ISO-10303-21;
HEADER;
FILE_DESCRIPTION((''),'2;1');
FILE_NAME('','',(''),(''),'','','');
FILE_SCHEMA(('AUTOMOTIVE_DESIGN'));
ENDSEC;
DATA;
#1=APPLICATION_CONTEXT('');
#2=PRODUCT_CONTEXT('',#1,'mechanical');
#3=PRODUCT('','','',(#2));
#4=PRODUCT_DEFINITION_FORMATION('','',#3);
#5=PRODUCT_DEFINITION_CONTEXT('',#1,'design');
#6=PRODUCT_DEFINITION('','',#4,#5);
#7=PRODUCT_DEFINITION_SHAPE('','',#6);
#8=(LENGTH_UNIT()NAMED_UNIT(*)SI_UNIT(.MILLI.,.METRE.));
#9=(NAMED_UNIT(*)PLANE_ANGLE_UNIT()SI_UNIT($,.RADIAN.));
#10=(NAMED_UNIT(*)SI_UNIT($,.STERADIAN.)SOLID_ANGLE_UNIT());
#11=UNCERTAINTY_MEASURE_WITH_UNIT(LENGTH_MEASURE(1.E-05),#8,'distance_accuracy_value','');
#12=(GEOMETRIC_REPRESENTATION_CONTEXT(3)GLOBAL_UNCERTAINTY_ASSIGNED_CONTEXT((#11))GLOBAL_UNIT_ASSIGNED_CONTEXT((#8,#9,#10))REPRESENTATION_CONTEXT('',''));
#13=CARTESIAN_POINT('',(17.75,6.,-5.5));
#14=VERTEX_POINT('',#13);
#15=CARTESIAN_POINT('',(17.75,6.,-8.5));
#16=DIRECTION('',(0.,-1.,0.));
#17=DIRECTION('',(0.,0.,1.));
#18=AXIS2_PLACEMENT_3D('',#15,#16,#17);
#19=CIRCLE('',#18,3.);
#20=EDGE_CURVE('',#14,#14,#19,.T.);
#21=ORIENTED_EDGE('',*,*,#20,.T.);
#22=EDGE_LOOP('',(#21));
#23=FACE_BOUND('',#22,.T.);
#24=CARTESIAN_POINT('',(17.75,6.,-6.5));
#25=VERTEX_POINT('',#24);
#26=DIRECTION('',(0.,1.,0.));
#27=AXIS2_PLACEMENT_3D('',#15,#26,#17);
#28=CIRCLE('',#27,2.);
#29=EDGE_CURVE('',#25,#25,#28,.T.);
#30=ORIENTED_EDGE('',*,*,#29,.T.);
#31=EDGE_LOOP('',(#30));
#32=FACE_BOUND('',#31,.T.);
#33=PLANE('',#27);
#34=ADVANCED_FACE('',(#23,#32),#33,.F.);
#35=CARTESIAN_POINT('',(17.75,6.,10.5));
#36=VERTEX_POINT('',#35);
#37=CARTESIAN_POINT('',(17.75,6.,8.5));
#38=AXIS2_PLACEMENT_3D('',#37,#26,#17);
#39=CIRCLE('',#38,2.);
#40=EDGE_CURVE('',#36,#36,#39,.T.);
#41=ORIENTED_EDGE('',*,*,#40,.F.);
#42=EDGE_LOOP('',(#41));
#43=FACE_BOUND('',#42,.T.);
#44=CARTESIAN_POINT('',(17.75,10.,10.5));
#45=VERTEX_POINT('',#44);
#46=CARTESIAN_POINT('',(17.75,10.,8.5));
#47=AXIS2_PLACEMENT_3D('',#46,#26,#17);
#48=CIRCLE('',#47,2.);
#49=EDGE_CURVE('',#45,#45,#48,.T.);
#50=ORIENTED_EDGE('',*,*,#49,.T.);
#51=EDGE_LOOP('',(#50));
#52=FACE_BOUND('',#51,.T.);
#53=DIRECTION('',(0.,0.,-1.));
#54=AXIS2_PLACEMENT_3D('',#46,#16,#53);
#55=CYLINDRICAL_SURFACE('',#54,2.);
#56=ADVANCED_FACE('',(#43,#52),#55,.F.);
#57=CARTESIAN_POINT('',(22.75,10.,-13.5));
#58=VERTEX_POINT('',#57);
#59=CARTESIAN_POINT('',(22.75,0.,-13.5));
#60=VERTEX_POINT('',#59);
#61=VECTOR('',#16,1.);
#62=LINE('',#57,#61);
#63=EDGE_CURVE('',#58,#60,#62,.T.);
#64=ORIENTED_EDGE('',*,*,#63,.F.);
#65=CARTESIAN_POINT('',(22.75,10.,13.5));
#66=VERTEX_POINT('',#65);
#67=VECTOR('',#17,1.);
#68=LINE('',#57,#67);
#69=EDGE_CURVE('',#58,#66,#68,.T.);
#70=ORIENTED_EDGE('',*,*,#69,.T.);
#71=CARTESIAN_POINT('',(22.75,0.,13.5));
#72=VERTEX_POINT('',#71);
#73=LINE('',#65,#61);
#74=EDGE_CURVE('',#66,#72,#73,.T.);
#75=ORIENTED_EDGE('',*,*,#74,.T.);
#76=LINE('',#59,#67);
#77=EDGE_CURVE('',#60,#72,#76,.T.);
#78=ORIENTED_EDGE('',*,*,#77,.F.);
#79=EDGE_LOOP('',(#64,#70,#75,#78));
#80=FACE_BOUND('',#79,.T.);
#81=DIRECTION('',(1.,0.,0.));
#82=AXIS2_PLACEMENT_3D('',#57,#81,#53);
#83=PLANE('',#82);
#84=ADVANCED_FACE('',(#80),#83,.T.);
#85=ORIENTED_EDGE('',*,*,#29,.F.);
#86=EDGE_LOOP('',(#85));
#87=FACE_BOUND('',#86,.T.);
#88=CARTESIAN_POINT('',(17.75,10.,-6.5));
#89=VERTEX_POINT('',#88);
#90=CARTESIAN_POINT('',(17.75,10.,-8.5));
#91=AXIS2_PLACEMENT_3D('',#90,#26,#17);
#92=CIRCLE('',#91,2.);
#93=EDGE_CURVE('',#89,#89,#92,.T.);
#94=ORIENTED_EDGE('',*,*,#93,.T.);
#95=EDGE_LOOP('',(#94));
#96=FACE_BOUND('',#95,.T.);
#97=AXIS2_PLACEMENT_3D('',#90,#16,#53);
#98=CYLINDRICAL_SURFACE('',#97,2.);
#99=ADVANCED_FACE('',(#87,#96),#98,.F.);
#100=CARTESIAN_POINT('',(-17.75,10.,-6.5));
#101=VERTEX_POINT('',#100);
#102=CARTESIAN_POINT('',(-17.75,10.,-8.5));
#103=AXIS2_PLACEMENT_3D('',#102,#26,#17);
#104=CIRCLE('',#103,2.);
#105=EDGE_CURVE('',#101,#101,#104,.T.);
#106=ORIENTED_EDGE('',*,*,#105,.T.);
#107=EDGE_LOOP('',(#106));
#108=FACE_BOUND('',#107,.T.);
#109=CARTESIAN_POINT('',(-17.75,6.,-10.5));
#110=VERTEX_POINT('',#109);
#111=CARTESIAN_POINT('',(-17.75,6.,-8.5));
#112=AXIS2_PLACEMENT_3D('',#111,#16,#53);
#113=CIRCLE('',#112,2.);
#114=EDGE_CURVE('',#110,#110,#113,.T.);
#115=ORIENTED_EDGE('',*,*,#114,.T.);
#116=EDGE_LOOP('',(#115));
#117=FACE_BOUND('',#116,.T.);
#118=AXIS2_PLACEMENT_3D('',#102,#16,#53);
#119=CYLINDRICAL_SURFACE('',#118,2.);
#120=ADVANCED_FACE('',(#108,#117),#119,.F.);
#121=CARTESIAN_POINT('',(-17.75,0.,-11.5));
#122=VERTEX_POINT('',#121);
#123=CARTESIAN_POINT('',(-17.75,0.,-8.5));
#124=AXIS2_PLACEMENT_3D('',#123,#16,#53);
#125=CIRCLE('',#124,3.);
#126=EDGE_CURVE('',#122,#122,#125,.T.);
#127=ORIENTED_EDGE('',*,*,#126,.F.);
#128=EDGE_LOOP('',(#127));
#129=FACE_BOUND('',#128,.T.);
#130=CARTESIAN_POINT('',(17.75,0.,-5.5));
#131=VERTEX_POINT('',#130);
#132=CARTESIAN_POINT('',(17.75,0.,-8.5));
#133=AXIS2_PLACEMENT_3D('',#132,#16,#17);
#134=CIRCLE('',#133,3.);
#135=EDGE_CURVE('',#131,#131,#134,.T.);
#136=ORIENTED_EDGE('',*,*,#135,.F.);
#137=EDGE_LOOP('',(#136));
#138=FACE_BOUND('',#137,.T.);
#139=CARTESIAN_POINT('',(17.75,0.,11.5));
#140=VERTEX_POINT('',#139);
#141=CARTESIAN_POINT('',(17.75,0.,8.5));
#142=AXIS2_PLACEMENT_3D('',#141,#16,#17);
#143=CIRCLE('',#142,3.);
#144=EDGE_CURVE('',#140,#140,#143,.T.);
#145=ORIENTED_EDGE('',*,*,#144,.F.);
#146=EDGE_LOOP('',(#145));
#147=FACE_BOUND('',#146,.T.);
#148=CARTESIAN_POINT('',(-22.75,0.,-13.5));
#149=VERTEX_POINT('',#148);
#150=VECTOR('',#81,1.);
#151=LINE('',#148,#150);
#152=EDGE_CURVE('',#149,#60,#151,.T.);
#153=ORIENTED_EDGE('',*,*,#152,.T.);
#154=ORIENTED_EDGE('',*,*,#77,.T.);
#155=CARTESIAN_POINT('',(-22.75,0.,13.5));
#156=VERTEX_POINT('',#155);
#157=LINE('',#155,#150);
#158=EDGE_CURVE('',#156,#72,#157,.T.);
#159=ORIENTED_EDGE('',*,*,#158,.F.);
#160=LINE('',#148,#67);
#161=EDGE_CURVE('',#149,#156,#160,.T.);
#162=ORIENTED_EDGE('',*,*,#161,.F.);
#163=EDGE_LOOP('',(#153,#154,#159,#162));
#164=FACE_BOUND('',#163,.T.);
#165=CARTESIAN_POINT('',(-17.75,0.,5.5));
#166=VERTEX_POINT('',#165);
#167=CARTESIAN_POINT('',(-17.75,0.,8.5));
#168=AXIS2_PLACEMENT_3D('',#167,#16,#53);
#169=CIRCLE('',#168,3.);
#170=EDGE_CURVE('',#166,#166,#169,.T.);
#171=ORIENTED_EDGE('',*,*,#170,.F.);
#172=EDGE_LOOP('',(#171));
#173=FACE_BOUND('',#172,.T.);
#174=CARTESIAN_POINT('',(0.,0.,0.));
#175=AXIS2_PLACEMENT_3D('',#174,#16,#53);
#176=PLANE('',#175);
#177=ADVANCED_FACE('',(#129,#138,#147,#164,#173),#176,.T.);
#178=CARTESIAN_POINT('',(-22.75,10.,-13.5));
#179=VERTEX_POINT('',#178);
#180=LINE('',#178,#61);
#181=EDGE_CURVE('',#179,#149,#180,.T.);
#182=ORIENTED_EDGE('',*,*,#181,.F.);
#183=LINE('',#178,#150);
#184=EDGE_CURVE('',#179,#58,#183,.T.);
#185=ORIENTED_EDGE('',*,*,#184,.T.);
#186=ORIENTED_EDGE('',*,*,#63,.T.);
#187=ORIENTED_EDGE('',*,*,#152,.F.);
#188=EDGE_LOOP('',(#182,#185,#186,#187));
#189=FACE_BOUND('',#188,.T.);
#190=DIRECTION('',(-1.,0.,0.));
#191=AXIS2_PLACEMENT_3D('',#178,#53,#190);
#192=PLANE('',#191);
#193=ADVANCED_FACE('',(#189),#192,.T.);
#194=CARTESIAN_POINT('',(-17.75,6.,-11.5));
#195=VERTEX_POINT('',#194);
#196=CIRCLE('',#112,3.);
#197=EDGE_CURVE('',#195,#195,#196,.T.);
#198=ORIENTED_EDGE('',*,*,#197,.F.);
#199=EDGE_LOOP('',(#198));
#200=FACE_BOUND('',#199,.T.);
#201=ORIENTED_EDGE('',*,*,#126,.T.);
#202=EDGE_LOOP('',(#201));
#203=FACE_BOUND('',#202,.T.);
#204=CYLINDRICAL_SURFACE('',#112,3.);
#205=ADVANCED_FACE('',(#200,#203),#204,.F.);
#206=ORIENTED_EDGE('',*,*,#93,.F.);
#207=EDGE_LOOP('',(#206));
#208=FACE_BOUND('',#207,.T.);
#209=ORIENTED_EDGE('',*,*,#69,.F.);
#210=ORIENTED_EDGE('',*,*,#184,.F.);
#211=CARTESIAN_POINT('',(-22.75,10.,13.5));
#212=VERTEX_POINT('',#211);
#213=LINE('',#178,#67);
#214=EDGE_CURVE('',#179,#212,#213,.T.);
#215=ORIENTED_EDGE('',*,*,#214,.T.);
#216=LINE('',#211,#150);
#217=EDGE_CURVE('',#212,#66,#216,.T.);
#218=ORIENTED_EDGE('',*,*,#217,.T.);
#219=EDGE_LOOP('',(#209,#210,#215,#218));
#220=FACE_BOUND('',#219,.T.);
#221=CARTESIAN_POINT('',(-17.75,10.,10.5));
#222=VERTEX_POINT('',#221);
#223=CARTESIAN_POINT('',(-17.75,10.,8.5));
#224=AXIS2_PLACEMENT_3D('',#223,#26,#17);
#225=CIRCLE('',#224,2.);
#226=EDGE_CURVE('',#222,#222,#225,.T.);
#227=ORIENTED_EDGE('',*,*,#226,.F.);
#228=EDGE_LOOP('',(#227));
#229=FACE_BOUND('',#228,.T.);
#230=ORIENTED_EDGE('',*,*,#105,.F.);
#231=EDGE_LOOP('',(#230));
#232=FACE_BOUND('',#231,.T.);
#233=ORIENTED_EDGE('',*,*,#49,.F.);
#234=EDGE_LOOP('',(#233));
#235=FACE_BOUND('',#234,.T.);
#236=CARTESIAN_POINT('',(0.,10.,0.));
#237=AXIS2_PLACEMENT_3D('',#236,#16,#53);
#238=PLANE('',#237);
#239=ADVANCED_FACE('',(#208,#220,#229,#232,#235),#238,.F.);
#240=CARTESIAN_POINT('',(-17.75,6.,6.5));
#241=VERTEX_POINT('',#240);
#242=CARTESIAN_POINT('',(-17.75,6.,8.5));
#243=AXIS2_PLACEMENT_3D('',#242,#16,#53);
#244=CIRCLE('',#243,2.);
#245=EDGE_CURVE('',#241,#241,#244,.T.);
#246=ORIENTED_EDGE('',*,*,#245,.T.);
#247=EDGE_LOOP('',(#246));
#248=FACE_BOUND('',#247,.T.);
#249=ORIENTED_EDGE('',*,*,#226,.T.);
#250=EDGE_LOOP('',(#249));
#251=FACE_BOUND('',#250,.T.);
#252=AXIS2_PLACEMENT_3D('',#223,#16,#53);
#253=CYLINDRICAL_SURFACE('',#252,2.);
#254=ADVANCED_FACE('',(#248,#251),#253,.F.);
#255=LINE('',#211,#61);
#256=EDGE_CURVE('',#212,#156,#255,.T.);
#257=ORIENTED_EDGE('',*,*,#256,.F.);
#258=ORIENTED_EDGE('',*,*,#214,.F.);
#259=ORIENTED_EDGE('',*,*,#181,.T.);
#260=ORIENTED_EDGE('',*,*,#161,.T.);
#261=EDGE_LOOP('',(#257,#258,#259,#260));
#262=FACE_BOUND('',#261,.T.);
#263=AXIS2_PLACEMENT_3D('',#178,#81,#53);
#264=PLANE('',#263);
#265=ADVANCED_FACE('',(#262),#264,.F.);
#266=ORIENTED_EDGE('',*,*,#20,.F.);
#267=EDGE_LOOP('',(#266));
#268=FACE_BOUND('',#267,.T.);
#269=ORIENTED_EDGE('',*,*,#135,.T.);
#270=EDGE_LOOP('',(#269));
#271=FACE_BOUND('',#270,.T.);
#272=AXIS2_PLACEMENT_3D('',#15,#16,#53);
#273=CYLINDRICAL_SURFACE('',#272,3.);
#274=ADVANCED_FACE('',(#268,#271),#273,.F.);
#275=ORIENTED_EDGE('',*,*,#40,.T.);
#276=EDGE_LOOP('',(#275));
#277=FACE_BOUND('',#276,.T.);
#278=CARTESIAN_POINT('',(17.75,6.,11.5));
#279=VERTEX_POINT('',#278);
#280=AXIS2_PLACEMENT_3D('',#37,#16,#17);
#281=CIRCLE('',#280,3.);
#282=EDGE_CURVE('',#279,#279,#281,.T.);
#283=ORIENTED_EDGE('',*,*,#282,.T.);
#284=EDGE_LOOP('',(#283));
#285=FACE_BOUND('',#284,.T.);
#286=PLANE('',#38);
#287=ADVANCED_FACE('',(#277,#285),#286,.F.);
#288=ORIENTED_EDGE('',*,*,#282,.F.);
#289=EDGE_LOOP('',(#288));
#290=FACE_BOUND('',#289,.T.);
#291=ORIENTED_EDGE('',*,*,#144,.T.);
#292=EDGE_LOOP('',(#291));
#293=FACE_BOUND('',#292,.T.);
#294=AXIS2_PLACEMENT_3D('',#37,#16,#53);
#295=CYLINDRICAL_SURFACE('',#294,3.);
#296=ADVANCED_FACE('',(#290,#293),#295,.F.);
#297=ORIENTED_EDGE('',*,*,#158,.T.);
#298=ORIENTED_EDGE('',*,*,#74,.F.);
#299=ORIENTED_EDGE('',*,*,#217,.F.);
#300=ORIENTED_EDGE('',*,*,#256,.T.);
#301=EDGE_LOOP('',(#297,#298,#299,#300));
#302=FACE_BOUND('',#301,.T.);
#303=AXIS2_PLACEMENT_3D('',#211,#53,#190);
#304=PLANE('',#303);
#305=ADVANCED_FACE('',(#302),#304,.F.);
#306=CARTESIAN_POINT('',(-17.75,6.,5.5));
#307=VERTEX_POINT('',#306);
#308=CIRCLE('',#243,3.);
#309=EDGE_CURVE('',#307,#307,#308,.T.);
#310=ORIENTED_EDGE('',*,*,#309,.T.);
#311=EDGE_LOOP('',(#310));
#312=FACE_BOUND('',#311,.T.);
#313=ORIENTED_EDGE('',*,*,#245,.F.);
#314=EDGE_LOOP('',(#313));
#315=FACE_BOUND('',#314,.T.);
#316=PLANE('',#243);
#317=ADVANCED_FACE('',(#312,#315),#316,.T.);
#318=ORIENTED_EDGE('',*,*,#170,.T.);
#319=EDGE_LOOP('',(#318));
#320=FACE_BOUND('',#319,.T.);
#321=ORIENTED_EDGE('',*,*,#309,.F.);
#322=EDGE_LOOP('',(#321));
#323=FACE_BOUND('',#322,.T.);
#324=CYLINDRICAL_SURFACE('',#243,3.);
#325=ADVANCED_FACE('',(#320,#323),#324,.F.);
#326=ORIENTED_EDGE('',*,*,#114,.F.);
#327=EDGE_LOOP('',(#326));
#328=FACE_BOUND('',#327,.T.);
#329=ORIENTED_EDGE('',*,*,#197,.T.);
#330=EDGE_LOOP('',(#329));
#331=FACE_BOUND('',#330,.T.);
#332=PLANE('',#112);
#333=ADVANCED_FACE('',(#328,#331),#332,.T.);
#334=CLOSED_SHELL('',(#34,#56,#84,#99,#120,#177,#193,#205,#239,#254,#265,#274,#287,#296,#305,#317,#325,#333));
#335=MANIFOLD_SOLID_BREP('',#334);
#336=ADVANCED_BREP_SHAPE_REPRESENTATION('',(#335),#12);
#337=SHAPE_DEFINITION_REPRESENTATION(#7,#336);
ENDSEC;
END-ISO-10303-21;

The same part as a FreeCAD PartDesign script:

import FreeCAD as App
import Part
import Sketcher


def add_polygon(sketch, points):
    """Adds a closed chain of lines whose ends are joined by coincident constraints."""
    first, n = sketch.GeometryCount, len(points)
    for a, b in zip(points, points[1:] + points[:1]):
        sketch.addGeometry(Part.LineSegment(App.Vector(*a, 0), App.Vector(*b, 0)), False)
    for i in range(n):
        sketch.addConstraint(Sketcher.Constraint("Coincident", first + i, 2, first + (i + 1) % n, 1))

doc = App.newDocument("Part")
body = doc.addObject("PartDesign::Body", "Body")

# Sketch on XZ plane
sketch1 = doc.addObject("Sketcher::SketchObject", "Sketch")
body.addObject(sketch1)
sketch1.AttachmentSupport = (doc.XZ_Plane, [""])
sketch1.MapMode = "FlatFace"
add_polygon(sketch1, [(-22.8, -13.5), (-22.8, 13.5), (22.8, 13.5), (22.8, -13.5)])  # lines 0-3
sketch1.addGeometry(Part.Circle(App.Vector(-17.8, 8.5, 0), App.Vector(0, 0, 1), 2), False)  # 4
sketch1.addGeometry(Part.Circle(App.Vector(17.8, 8.5, 0), App.Vector(0, 0, 1), 2), False)  # 5
sketch1.addGeometry(Part.Circle(App.Vector(-17.8, -8.5, 0), App.Vector(0, 0, 1), 2), False)  # 6
sketch1.addGeometry(Part.Circle(App.Vector(17.8, -8.5, 0), App.Vector(0, 0, 1), 2), False)  # 7
sketch1.addConstraint([
    Sketcher.Constraint("Vertical", 0),
    Sketcher.Constraint("Horizontal", 1),
    Sketcher.Constraint("Vertical", 2),
    Sketcher.Constraint("Horizontal", 3),
    Sketcher.Constraint("Equal", 4, 5),
    Sketcher.Constraint("Equal", 5, 6),
    Sketcher.Constraint("Equal", 6, 7),
    Sketcher.Constraint("Symmetric", 5, 3, 6, 3, -1, 1),
    Sketcher.Constraint("Symmetric", 4, 3, 7, 3, -1, 1),
    Sketcher.Constraint("Symmetric", 0, 2, 2, 2, -1, 1),
    Sketcher.Constraint("Symmetric", 4, 3, 5, 3, -2),
    Sketcher.Constraint("Diameter", 4, 4.0),
    Sketcher.Constraint("DistanceY", 0, 1, 0, 2, 27.0),
    Sketcher.Constraint("DistanceX", 1, 1, 1, 2, 45.5),
    Sketcher.Constraint("DistanceY", 6, 3, 4, 3, 17.0),
    Sketcher.Constraint("DistanceX", 0, 2, 4, 3, 5.0),
])
pad1 = doc.addObject("PartDesign::Pad", "Pad")
body.addObject(pad1)
pad1.Profile = sketch1
pad1.Length = 10
pad1.Reversed = True

# Sketch on XZ plane
sketch2 = doc.addObject("Sketcher::SketchObject", "Sketch001")
body.addObject(sketch2)
sketch2.AttachmentSupport = (doc.XZ_Plane, [""])
sketch2.MapMode = "FlatFace"
sketch2.addGeometry([
    Part.Circle(App.Vector(-17.8, 8.5, 0), App.Vector(0, 0, 1), 3),
    Part.Circle(App.Vector(-17.8, -8.5, 0), App.Vector(0, 0, 1), 3),
    Part.Circle(App.Vector(17.8, -8.5, 0), App.Vector(0, 0, 1), 3),
    Part.Circle(App.Vector(17.8, 8.5, 0), App.Vector(0, 0, 1), 3),
], False)
sketch2.addConstraint([
    Sketcher.Constraint("Equal", 0, 1),
    Sketcher.Constraint("Equal", 1, 2),
    Sketcher.Constraint("Equal", 2, 3),
    Sketcher.Constraint("Symmetric", 0, 3, 2, 3, -1, 1),
    Sketcher.Constraint("Symmetric", 1, 3, 3, 3, -1, 1),
    Sketcher.Constraint("Symmetric", 1, 3, 2, 3, -2),
    Sketcher.Constraint("Diameter", 0, 6.0),
    Sketcher.Constraint("DistanceY", 1, 3, 0, 3, 17.0),
    Sketcher.Constraint("DistanceX", 1, 3, 2, 3, 35.5),
])
pocket1 = doc.addObject("PartDesign::Pocket", "Pocket")
body.addObject(pocket1)
pocket1.Profile = sketch2
pocket1.Length = 6

doc.recompute()
